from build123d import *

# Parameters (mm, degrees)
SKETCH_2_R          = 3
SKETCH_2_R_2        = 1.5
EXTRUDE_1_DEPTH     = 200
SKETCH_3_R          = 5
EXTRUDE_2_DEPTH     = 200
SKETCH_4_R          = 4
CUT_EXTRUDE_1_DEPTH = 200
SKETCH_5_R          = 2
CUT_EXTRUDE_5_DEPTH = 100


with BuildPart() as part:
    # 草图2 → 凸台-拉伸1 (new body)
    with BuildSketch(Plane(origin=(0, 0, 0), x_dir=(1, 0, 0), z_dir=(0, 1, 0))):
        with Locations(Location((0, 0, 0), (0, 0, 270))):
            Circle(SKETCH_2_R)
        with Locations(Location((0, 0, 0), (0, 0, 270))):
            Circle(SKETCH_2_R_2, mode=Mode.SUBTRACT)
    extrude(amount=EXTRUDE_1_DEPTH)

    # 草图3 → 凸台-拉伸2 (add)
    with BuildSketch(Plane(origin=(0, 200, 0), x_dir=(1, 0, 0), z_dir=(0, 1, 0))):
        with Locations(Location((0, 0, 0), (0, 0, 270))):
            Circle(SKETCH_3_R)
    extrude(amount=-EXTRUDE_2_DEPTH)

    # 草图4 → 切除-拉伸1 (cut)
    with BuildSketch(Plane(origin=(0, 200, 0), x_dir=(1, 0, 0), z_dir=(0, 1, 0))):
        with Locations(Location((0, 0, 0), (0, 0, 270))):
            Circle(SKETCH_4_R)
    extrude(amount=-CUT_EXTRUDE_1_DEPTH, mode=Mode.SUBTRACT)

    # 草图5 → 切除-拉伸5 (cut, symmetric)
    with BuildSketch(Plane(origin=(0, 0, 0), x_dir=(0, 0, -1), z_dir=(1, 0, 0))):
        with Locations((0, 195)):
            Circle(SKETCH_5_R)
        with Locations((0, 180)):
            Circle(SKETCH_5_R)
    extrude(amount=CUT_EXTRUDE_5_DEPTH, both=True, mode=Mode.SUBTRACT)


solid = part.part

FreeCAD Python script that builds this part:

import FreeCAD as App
import Part
import Sketcher
from FreeCAD import Vector
Q = App.Units.Quantity

doc = App.newDocument("Part")
params = doc.addObject("Spreadsheet::Sheet", "Params")
for row, (alias, value) in enumerate([
    ("sketch1_diameter", "6 mm"),
    ("sketch1_diameter2", "3 mm"),
    ("pad1_length", "200 mm"),
    ("sketch2_diameter", "10 mm"),
    ("pad2_length", "200 mm"),
    ("sketch3_diameter", "8 mm"),
    ("pocket1_length", "200 mm"),
    ("sketch4_diameter", "4 mm"),
    ("pocket2_length", "200 mm"),
], start=1):
    params.set(f"A{row}", alias)
    params.set(f"B{row}", "=" + value)
    params.setAlias(f"B{row}", alias)

body = doc.addObject("PartDesign::Body", "Body")

sketch1 = body.newObject("Sketcher::SketchObject", "Sketch")
sketch1.AttachmentSupport = (doc.getObject("XZ_Plane"), [""])
sketch1.MapMode = "FlatFace"
sketch1.addGeometry([
    Part.Circle(Vector(0, 0, 0), Vector(0, 0, 1), 3),
    Part.Circle(Vector(0, 0, 0), Vector(0, 0, 1), 1.5),
], False)
sketch1.addConstraint([
    Sketcher.Constraint("Coincident", 0, 3, -1, 1),
    Sketcher.Constraint("Coincident", 1, 3, -1, 1),
    Sketcher.Constraint("Diameter", 0, Q("6 mm")),
    Sketcher.Constraint("Diameter", 1, Q("3 mm")),
])
sketch1.setExpression("Constraints[2]", "Params.sketch1_diameter")
sketch1.setExpression("Constraints[3]", "Params.sketch1_diameter2")
pad1 = body.newObject("PartDesign::Pad", "Pad")
pad1.Profile = sketch1
pad1.setExpression("Length", "Params.pad1_length")
pad1.Reversed = True

sketch2 = body.newObject("Sketcher::SketchObject", "Sketch001")
sketch2.AttachmentSupport = (doc.getObject("XZ_Plane"), [""])
sketch2.MapMode = "FlatFace"
sketch2.AttachmentOffset = App.Placement(Vector(0, 0, -200), App.Rotation())
sketch2.addGeometry(Part.Circle(Vector(0, 0, 0), Vector(0, 0, 1), 5), False)
sketch2.addConstraint([
    Sketcher.Constraint("Coincident", 0, 3, -1, 1),
    Sketcher.Constraint("Diameter", 0, Q("10 mm")),
])
sketch2.setExpression("Constraints[1]", "Params.sketch2_diameter")
pad2 = body.newObject("PartDesign::Pad", "Pad001")
pad2.Profile = sketch2
pad2.setExpression("Length", "Params.pad2_length")

sketch3 = body.newObject("Sketcher::SketchObject", "Sketch002")
sketch3.AttachmentSupport = (doc.getObject("XZ_Plane"), [""])
sketch3.MapMode = "FlatFace"
sketch3.AttachmentOffset = App.Placement(Vector(0, 0, -200), App.Rotation())
sketch3.addGeometry(Part.Circle(Vector(0, 0, 0), Vector(0, 0, 1), 4), False)
sketch3.addConstraint([
    Sketcher.Constraint("Coincident", 0, 3, -1, 1),
    Sketcher.Constraint("Diameter", 0, Q("8 mm")),
])
sketch3.setExpression("Constraints[1]", "Params.sketch3_diameter")
pocket1 = body.newObject("PartDesign::Pocket", "Pocket")
pocket1.Profile = sketch3
pocket1.setExpression("Length", "Params.pocket1_length")
pocket1.Reversed = True

sketch4 = body.newObject("Sketcher::SketchObject", "Sketch003")
sketch4.AttachmentSupport = (doc.getObject("YZ_Plane"), [""])
sketch4.MapMode = "FlatFace"
sketch4.addGeometry([
    Part.Circle(Vector(195, 0, 0), Vector(0, 0, 1), 2),
    Part.Circle(Vector(180, 0, 0), Vector(0, 0, 1), 2),
], False)
sketch4.addConstraint([
    Sketcher.Constraint("Equal", 0, 1),
    Sketcher.Constraint("PointOnObject", 0, 3, -1),
    Sketcher.Constraint("PointOnObject", 1, 3, -1),
    Sketcher.Constraint("Diameter", 0, Q("4 mm")),
    Sketcher.Constraint("DistanceX", -1, 1, 0, 3, Q("195 mm")),
    Sketcher.Constraint("DistanceX", -1, 1, 1, 3, Q("180 mm")),
])
sketch4.setExpression("Constraints[3]", "Params.sketch4_diameter")
pocket2 = body.newObject("PartDesign::Pocket", "Pocket001")
pocket2.Profile = sketch4
pocket2.setExpression("Length", "Params.pocket2_length")
pocket2.Midplane = True

doc.recompute()
